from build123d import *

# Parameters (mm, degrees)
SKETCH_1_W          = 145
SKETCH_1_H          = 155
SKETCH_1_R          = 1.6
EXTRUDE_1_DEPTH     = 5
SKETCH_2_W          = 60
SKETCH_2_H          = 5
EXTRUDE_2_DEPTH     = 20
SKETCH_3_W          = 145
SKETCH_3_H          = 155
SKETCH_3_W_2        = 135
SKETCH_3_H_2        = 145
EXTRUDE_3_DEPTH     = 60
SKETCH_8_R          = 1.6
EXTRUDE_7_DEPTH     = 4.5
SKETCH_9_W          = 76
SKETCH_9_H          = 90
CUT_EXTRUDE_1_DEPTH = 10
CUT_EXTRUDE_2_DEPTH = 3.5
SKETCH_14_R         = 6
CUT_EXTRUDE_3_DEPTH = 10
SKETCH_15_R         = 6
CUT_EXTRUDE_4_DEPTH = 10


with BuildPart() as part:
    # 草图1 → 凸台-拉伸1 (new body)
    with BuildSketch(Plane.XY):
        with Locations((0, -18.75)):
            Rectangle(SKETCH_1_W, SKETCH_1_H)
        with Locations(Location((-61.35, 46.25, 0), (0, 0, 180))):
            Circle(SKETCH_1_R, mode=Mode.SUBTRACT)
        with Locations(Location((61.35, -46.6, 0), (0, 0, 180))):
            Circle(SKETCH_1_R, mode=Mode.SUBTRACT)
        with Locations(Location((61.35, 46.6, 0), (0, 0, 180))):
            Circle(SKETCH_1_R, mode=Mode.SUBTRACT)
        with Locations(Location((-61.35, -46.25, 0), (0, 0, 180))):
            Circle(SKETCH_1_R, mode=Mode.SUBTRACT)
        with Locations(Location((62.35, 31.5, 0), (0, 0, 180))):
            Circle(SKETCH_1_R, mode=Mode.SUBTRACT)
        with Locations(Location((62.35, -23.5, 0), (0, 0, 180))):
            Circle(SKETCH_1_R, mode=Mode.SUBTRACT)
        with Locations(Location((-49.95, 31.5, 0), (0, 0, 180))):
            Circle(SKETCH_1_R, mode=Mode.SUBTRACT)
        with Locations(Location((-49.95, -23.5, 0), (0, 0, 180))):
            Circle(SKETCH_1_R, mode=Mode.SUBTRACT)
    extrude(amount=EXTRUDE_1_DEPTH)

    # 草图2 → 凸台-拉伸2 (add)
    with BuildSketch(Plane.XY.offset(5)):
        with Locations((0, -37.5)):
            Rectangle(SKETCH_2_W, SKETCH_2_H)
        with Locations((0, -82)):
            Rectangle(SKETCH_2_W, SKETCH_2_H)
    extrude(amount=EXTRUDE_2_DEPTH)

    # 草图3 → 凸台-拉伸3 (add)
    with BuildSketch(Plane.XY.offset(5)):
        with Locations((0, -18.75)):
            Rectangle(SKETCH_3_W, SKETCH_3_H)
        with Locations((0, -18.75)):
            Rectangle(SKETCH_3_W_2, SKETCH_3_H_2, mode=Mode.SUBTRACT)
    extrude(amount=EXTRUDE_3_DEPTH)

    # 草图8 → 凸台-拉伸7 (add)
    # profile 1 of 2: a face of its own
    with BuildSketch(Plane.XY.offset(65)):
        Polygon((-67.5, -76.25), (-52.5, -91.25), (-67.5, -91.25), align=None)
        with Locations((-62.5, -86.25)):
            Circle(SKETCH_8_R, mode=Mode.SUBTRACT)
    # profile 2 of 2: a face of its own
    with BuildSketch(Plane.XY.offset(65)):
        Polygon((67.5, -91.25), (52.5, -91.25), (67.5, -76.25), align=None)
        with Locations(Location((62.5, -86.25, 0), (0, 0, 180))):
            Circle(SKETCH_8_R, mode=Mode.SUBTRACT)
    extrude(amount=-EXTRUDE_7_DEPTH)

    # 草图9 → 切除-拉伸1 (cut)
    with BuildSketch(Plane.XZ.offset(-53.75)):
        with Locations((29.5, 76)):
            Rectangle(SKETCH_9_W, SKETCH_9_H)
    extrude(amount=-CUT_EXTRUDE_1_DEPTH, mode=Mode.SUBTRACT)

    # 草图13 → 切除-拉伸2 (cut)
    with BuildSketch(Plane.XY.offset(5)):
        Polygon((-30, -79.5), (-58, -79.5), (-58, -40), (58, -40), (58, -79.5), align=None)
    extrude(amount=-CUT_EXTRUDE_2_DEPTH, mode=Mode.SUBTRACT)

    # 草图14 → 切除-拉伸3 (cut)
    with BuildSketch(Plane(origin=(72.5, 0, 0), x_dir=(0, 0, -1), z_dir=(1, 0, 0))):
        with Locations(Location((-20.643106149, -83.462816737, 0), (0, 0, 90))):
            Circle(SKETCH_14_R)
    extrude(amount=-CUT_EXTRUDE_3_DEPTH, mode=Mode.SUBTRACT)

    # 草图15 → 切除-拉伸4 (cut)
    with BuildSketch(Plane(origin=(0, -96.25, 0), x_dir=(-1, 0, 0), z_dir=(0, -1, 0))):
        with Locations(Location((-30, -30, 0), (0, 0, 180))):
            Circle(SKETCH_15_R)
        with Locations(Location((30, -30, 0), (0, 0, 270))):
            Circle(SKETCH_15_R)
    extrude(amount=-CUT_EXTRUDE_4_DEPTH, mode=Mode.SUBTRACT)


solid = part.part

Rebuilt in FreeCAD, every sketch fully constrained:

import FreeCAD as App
import Part
import Sketcher
Q = App.Units.Quantity

doc = App.newDocument("Part")
body = doc.addObject("PartDesign::Body", "Body")

# Sketch on XY plane
sketch1 = body.newObject("Sketcher::SketchObject", "Sketch")
sketch1.AttachmentSupport = (doc.getObject("XY_Plane"), [""])
sketch1.MapMode = "FlatFace"
sketch1.addGeometry([
    Part.LineSegment(App.Vector(-72.5, 58.75, 0), App.Vector(-72.5, -96.25, 0)),  # 0
    Part.LineSegment(App.Vector(-72.5, -96.25, 0), App.Vector(72.5, -96.25, 0)),  # 1
    Part.LineSegment(App.Vector(72.5, -96.25, 0), App.Vector(72.5, 58.75, 0)),  # 2
    Part.LineSegment(App.Vector(72.5, 58.75, 0), App.Vector(-72.5, 58.75, 0)),  # 3
    Part.Circle(App.Vector(-61.35, -46.25, 0), App.Vector(0, 0, 1), 1.6),  # 4
    Part.Circle(App.Vector(-49.95, -23.5, 0), App.Vector(0, 0, 1), 1.6),  # 5
    Part.Circle(App.Vector(61.35, -46.6, 0), App.Vector(0, 0, 1), 1.6),  # 6
    Part.Circle(App.Vector(62.35, -23.5, 0), App.Vector(0, 0, 1), 1.6),  # 7
    Part.Circle(App.Vector(-49.95, 31.5, 0), App.Vector(0, 0, 1), 1.6),  # 8
    Part.Circle(App.Vector(-61.35, 46.25, 0), App.Vector(0, 0, 1), 1.6),  # 9
    Part.Circle(App.Vector(62.35, 31.5, 0), App.Vector(0, 0, 1), 1.6),  # 10
    Part.Circle(App.Vector(61.35, 46.6, 0), App.Vector(0, 0, 1), 1.6),  # 11
], False)
sketch1.addConstraint([
    Sketcher.Constraint("Coincident", 0, 2, 1, 1),
    Sketcher.Constraint("Coincident", 1, 2, 2, 1),
    Sketcher.Constraint("Coincident", 2, 2, 3, 1),
    Sketcher.Constraint("Coincident", 3, 2, 0, 1),
    Sketcher.Constraint("Vertical", 0),
    Sketcher.Constraint("Horizontal", 1),
    Sketcher.Constraint("Vertical", 2),
    Sketcher.Constraint("Horizontal", 3),
    Sketcher.Constraint("Equal", 4, 5),
    Sketcher.Constraint("Equal", 5, 6),
    Sketcher.Constraint("Equal", 6, 7),
    Sketcher.Constraint("Equal", 7, 8),
    Sketcher.Constraint("Equal", 8, 9),
    Sketcher.Constraint("Equal", 9, 10),
    Sketcher.Constraint("Equal", 10, 11),
    Sketcher.Constraint("Symmetric", 4, 3, 9, 3, -1),
    Sketcher.Constraint("Symmetric", 6, 3, 11, 3, -1),
    Sketcher.Constraint("Horizontal", 5, 3, 7, 3),
    Sketcher.Constraint("Horizontal", 8, 3, 10, 3),
    Sketcher.Constraint("Vertical", 5, 3, 8, 3),
    Sketcher.Constraint("Vertical", 7, 3, 10, 3),
    Sketcher.Constraint("Diameter", 4, Q("3.2 mm")),
    Sketcher.Constraint("DistanceX", 1, 1, 1, 2, Q("145 mm")),
    Sketcher.Constraint("DistanceY", 0, 2, 0, 1, Q("155 mm")),
    Sketcher.Constraint("DistanceX", 6, 3, 7, 3, Q("1 mm")),
    Sketcher.Constraint("DistanceY", 5, 3, 8, 3, Q("55 mm")),
    Sketcher.Constraint("DistanceY", 0, 2, 4, 3, Q("50 mm")),
    Sketcher.Constraint("DistanceY", 5, 3, -1, 1, Q("23.5 mm")),
    Sketcher.Constraint("DistanceY", 6, 3, -1, 1, Q("46.6 mm")),
    Sketcher.Constraint("DistanceX", 0, 2, -1, 1, Q("72.5 mm")),
    Sketcher.Constraint("DistanceX", 4, 3, 5, 3, Q("11.4 mm")),
    Sketcher.Constraint("DistanceX", 5, 3, 6, 3, Q("111.3 mm")),
    Sketcher.Constraint("DistanceY", 4, 3, 9, 3, Q("92.5 mm")),
    Sketcher.Constraint("DistanceX", 4, 3, -1, 1, Q("61.35 mm")),
])
pad1 = body.newObject("PartDesign::Pad", "Pad")
pad1.Profile = sketch1
pad1.Length = 5

# Sketch on XY plane
sketch2 = body.newObject("Sketcher::SketchObject", "Sketch001")
sketch2.AttachmentSupport = (doc.getObject("XY_Plane"), [""])
sketch2.MapMode = "FlatFace"
sketch2.AttachmentOffset = App.Placement(App.Vector(0, 0, 5), App.Rotation())
sketch2.addGeometry([
    Part.LineSegment(App.Vector(-30, -35, 0), App.Vector(-30, -40, 0)),  # 0
    Part.LineSegment(App.Vector(-30, -40, 0), App.Vector(30, -40, 0)),  # 1
    Part.LineSegment(App.Vector(30, -40, 0), App.Vector(30, -35, 0)),  # 2
    Part.LineSegment(App.Vector(30, -35, 0), App.Vector(-30, -35, 0)),  # 3
    Part.LineSegment(App.Vector(-30, -79.5, 0), App.Vector(-30, -84.5, 0)),  # 4
    Part.LineSegment(App.Vector(-30, -84.5, 0), App.Vector(30, -84.5, 0)),  # 5
    Part.LineSegment(App.Vector(30, -84.5, 0), App.Vector(30, -79.5, 0)),  # 6
    Part.LineSegment(App.Vector(30, -79.5, 0), App.Vector(-30, -79.5, 0)),  # 7
], False)
sketch2.addConstraint([
    Sketcher.Constraint("Coincident", 0, 2, 1, 1),
    Sketcher.Constraint("Coincident", 1, 2, 2, 1),
    Sketcher.Constraint("Coincident", 2, 2, 3, 1),
    Sketcher.Constraint("Coincident", 3, 2, 0, 1),
    Sketcher.Constraint("Coincident", 4, 2, 5, 1),
    Sketcher.Constraint("Coincident", 5, 2, 6, 1),
    Sketcher.Constraint("Coincident", 6, 2, 7, 1),
    Sketcher.Constraint("Coincident", 7, 2, 4, 1),
    Sketcher.Constraint("Vertical", 0),
    Sketcher.Constraint("Horizontal", 1),
    Sketcher.Constraint("Vertical", 2),
    Sketcher.Constraint("Horizontal", 3),
    Sketcher.Constraint("Vertical", 4),
    Sketcher.Constraint("Horizontal", 5),
    Sketcher.Constraint("Vertical", 6),
    Sketcher.Constraint("Horizontal", 7),
    Sketcher.Constraint("Vertical", 3, 2, 4, 2),
    Sketcher.Constraint("Vertical", 2, 2, 5, 2),
    Sketcher.Constraint("Equal", 2, 4),
    Sketcher.Constraint("DistanceX", 1, 1, 1, 2, Q("60 mm")),
    Sketcher.Constraint("DistanceY", 0, 2, 0, 1, Q("5 mm")),
    Sketcher.Constraint("DistanceX", 0, 2, -1, 1, Q("30 mm")),
    Sketcher.Constraint("DistanceY", 0, 2, -1, 1, Q("40 mm")),
    Sketcher.Constraint("DistanceY", 4, 2, -1, 1, Q("84.5 mm")),
])
pad2 = body.newObject("PartDesign::Pad", "Pad001")
pad2.Profile = sketch2
pad2.Length = 20

# Sketch on XY plane
sketch3 = body.newObject("Sketcher::SketchObject", "Sketch002")
sketch3.AttachmentSupport = (doc.getObject("XY_Plane"), [""])
sketch3.MapMode = "FlatFace"
sketch3.AttachmentOffset = App.Placement(App.Vector(0, 0, 5), App.Rotation())
sketch3.addGeometry([
    Part.LineSegment(App.Vector(-72.5, 58.75, 0), App.Vector(-72.5, -96.25, 0)),  # 0
    Part.LineSegment(App.Vector(-72.5, -96.25, 0), App.Vector(72.5, -96.25, 0)),  # 1
    Part.LineSegment(App.Vector(72.5, -96.25, 0), App.Vector(72.5, 58.75, 0)),  # 2
    Part.LineSegment(App.Vector(72.5, 58.75, 0), App.Vector(-72.5, 58.75, 0)),  # 3
    Part.LineSegment(App.Vector(67.5, -91.25, 0), App.Vector(-67.5, -91.25, 0)),  # 4
    Part.LineSegment(App.Vector(-67.5, -91.25, 0), App.Vector(-67.5, 53.75, 0)),  # 5
    Part.LineSegment(App.Vector(-67.5, 53.75, 0), App.Vector(67.5, 53.75, 0)),  # 6
    Part.LineSegment(App.Vector(67.5, 53.75, 0), App.Vector(67.5, -91.25, 0)),  # 7
], False)
sketch3.addConstraint([
    Sketcher.Constraint("Coincident", 0, 2, 1, 1),
    Sketcher.Constraint("Coincident", 1, 2, 2, 1),
    Sketcher.Constraint("Coincident", 2, 2, 3, 1),
    Sketcher.Constraint("Coincident", 3, 2, 0, 1),
    Sketcher.Constraint("Coincident", 4, 2, 5, 1),
    Sketcher.Constraint("Coincident", 5, 2, 6, 1),
    Sketcher.Constraint("Coincident", 6, 2, 7, 1),
    Sketcher.Constraint("Coincident", 7, 2, 4, 1),
    Sketcher.Constraint("Vertical", 0),
    Sketcher.Constraint("Horizontal", 1),
    Sketcher.Constraint("Vertical", 2),
    Sketcher.Constraint("Horizontal", 3),
    Sketcher.Constraint("Horizontal", 4),
    Sketcher.Constraint("Vertical", 5),
    Sketcher.Constraint("Horizontal", 6),
    Sketcher.Constraint("Vertical", 7),
    Sketcher.Constraint("Equal", 3, 5),
    Sketcher.Constraint("DistanceX", 1, 1, 1, 2, Q("145 mm")),
    Sketcher.Constraint("DistanceX", 4, 2, 4, 1, Q("135 mm")),
    Sketcher.Constraint("DistanceY", 0, 2, 0, 1, Q("155 mm")),
    Sketcher.Constraint("DistanceX", 0, 2, 4, 2, Q("5 mm")),
    Sketcher.Constraint("DistanceY", 0, 2, 4, 2, Q("5 mm")),
    Sketcher.Constraint("DistanceX", 0, 2, -1, 1, Q("72.5 mm")),
    Sketcher.Constraint("DistanceY", 0, 2, -1, 1, Q("96.25 mm")),
])
pad3 = body.newObject("PartDesign::Pad", "Pad002")
pad3.Profile = sketch3
pad3.Length = 60

# Sketch on XY plane
sketch4 = body.newObject("Sketcher::SketchObject", "Sketch003")
sketch4.AttachmentSupport = (doc.getObject("XY_Plane"), [""])
sketch4.MapMode = "FlatFace"
sketch4.AttachmentOffset = App.Placement(App.Vector(0, 0, 65), App.Rotation())
sketch4.addGeometry([
    Part.LineSegment(App.Vector(-52.5, -91.25, 0), App.Vector(-67.5, -76.25, 0)),  # 0
    Part.LineSegment(App.Vector(-67.5, -76.25, 0), App.Vector(-67.5, -91.25, 0)),  # 1
    Part.LineSegment(App.Vector(-67.5, -91.25, 0), App.Vector(-52.5, -91.25, 0)),  # 2
    Part.Circle(App.Vector(-62.5, -86.25, 0), App.Vector(0, 0, 1), 1.6),  # 3
    Part.LineSegment(App.Vector(52.5, -91.25, 0), App.Vector(67.5, -91.25, 0)),  # 4
    Part.LineSegment(App.Vector(67.5, -91.25, 0), App.Vector(67.5, -76.25, 0)),  # 5
    Part.LineSegment(App.Vector(67.5, -76.25, 0), App.Vector(52.5, -91.25, 0)),  # 6
    Part.Circle(App.Vector(62.5, -86.25, 0), App.Vector(0, 0, 1), 1.6),  # 7
], False)
sketch4.addConstraint([
    Sketcher.Constraint("Coincident", 0, 2, 1, 1),
    Sketcher.Constraint("Coincident", 1, 2, 2, 1),
    Sketcher.Constraint("Coincident", 2, 2, 0, 1),
    Sketcher.Constraint("Coincident", 4, 2, 5, 1),
    Sketcher.Constraint("Coincident", 5, 2, 6, 1),
    Sketcher.Constraint("Coincident", 6, 2, 4, 1),
    Sketcher.Constraint("Vertical", 1),
    Sketcher.Constraint("Horizontal", 2),
    Sketcher.Constraint("Horizontal", 4),
    Sketcher.Constraint("Vertical", 5),
    Sketcher.Constraint("Equal", 3, 7),
    Sketcher.Constraint("Symmetric", 3, 3, 7, 3, -2),
    Sketcher.Constraint("Symmetric", 1, 2, 4, 2, -2),
    Sketcher.Constraint("Perpendicular", 0, 6),
    Sketcher.Constraint("Horizontal", 0, 2, 5, 2),
    Sketcher.Constraint("Equal", 2, 4),
    Sketcher.Constraint("Diameter", 3, Q("3.2 mm")),
    Sketcher.Constraint("DistanceX", 2, 1, 2, 2, Q("15 mm")),
    Sketcher.Constraint("DistanceX", 3, 3, 7, 3, Q("125 mm")),
    Sketcher.Constraint("DistanceX", 0, 2, 3, 3, Q("5 mm")),
    Sketcher.Constraint("DistanceY", 3, 3, 0, 2, Q("10 mm")),
    Sketcher.Constraint("DistanceY", 3, 3, -1, 1, Q("86.25 mm")),
])
pad4 = body.newObject("PartDesign::Pad", "Pad003")
pad4.Profile = sketch4
pad4.Length = 4.5
pad4.Reversed = True

# Sketch on XZ plane
sketch5 = body.newObject("Sketcher::SketchObject", "Sketch004")
sketch5.AttachmentSupport = (doc.getObject("XZ_Plane"), [""])
sketch5.MapMode = "FlatFace"
sketch5.AttachmentOffset = App.Placement(App.Vector(0, 0, -53.75), App.Rotation())
sketch5.addGeometry([
    Part.LineSegment(App.Vector(-8.5, 121, 0), App.Vector(-8.5, 31, 0)),
    Part.LineSegment(App.Vector(-8.5, 31, 0), App.Vector(67.5, 31, 0)),
    Part.LineSegment(App.Vector(67.5, 31, 0), App.Vector(67.5, 121, 0)),
    Part.LineSegment(App.Vector(67.5, 121, 0), App.Vector(-8.5, 121, 0)),
], False)
sketch5.addConstraint([
    Sketcher.Constraint("Coincident", 0, 2, 1, 1),
    Sketcher.Constraint("Coincident", 1, 2, 2, 1),
    Sketcher.Constraint("Coincident", 2, 2, 3, 1),
    Sketcher.Constraint("Coincident", 3, 2, 0, 1),
    Sketcher.Constraint("Vertical", 0),
    Sketcher.Constraint("Horizontal", 1),
    Sketcher.Constraint("Vertical", 2),
    Sketcher.Constraint("Horizontal", 3),
    Sketcher.Constraint("DistanceX", 1, 1, 1, 2, Q("76 mm")),
    Sketcher.Constraint("DistanceY", 0, 2, 0, 1, Q("90 mm")),
    Sketcher.Constraint("DistanceY", -1, 1, 0, 2, Q("31 mm")),
    Sketcher.Constraint("DistanceX", 0, 2, -1, 1, Q("8.5 mm")),
])
pocket1 = body.newObject("PartDesign::Pocket", "Pocket")
pocket1.Profile = sketch5
pocket1.Length = 10

# Sketch on XY plane
sketch6 = body.newObject("Sketcher::SketchObject", "Sketch005")
sketch6.AttachmentSupport = (doc.getObject("XY_Plane"), [""])
sketch6.MapMode = "FlatFace"
sketch6.AttachmentOffset = App.Placement(App.Vector(0, 0, 5), App.Rotation())
sketch6.addGeometry([
    Part.LineSegment(App.Vector(-58, -79.5, 0), App.Vector(58, -79.5, 0)),
    Part.LineSegment(App.Vector(58, -79.5, 0), App.Vector(58, -40, 0)),
    Part.LineSegment(App.Vector(58, -40, 0), App.Vector(-58, -40, 0)),
    Part.LineSegment(App.Vector(-58, -40, 0), App.Vector(-58, -79.5, 0)),
], False)
sketch6.addConstraint([
    Sketcher.Constraint("Coincident", 0, 2, 1, 1),
    Sketcher.Constraint("Coincident", 1, 2, 2, 1),
    Sketcher.Constraint("Coincident", 2, 2, 3, 1),
    Sketcher.Constraint("Coincident", 3, 2, 0, 1),
    Sketcher.Constraint("Horizontal", 0),
    Sketcher.Constraint("Vertical", 1),
    Sketcher.Constraint("Horizontal", 2),
    Sketcher.Constraint("Vertical", 3),
    Sketcher.Constraint("DistanceX", 0, 1, 0, 2, Q("116 mm")),
    Sketcher.Constraint("DistanceY", 1, 1, 1, 2, Q("39.5 mm")),
    Sketcher.Constraint("DistanceX", -1, 1, 0, 2, Q("58 mm")),
    Sketcher.Constraint("DistanceY", 1, 2, -1, 1, Q("40 mm")),
])
pocket2 = body.newObject("PartDesign::Pocket", "Pocket001")
pocket2.Profile = sketch6
pocket2.Length = 3.5

# Sketch on YZ plane
sketch7 = body.newObject("Sketcher::SketchObject", "Sketch006")
sketch7.AttachmentSupport = (doc.getObject("YZ_Plane"), [""])
sketch7.MapMode = "FlatFace"
sketch7.AttachmentOffset = App.Placement(App.Vector(0, 0, 72.5), App.Rotation())
sketch7.addGeometry(Part.Circle(App.Vector(-83.462817, 20.643106, 0), App.Vector(0, 0, 1), 6), False)
sketch7.addConstraint([
    Sketcher.Constraint("Diameter", 0, Q("12 mm")),
    Sketcher.Constraint("DistanceX", 0, 3, -1, 1, Q("83.462817 mm")),
    Sketcher.Constraint("DistanceY", -1, 1, 0, 3, Q("20.643106 mm")),
])
pocket3 = body.newObject("PartDesign::Pocket", "Pocket002")
pocket3.Profile = sketch7
pocket3.Length = 10

# Sketch on XZ plane
sketch8 = body.newObject("Sketcher::SketchObject", "Sketch007")
sketch8.AttachmentSupport = (doc.getObject("XZ_Plane"), [""])
sketch8.MapMode = "FlatFace"
sketch8.AttachmentOffset = App.Placement(App.Vector(0, 0, 96.25), App.Rotation())
sketch8.addGeometry([
    Part.Circle(App.Vector(30, 30, 0), App.Vector(0, 0, 1), 6),
    Part.Circle(App.Vector(-30, 30, 0), App.Vector(0, 0, 1), 6),
], False)
sketch8.addConstraint([
    Sketcher.Constraint("Equal", 0, 1),
    Sketcher.Constraint("Symmetric", 0, 3, 1, 3, -2),
    Sketcher.Constraint("Diameter", 0, Q("12 mm")),
    Sketcher.Constraint("DistanceX", -1, 1, 0, 3, Q("30 mm")),
    Sketcher.Constraint("DistanceY", -1, 1, 0, 3, Q("30 mm")),
])
pocket4 = body.newObject("PartDesign::Pocket", "Pocket003")
pocket4.Profile = sketch8
pocket4.Length = 10

doc.recompute()
